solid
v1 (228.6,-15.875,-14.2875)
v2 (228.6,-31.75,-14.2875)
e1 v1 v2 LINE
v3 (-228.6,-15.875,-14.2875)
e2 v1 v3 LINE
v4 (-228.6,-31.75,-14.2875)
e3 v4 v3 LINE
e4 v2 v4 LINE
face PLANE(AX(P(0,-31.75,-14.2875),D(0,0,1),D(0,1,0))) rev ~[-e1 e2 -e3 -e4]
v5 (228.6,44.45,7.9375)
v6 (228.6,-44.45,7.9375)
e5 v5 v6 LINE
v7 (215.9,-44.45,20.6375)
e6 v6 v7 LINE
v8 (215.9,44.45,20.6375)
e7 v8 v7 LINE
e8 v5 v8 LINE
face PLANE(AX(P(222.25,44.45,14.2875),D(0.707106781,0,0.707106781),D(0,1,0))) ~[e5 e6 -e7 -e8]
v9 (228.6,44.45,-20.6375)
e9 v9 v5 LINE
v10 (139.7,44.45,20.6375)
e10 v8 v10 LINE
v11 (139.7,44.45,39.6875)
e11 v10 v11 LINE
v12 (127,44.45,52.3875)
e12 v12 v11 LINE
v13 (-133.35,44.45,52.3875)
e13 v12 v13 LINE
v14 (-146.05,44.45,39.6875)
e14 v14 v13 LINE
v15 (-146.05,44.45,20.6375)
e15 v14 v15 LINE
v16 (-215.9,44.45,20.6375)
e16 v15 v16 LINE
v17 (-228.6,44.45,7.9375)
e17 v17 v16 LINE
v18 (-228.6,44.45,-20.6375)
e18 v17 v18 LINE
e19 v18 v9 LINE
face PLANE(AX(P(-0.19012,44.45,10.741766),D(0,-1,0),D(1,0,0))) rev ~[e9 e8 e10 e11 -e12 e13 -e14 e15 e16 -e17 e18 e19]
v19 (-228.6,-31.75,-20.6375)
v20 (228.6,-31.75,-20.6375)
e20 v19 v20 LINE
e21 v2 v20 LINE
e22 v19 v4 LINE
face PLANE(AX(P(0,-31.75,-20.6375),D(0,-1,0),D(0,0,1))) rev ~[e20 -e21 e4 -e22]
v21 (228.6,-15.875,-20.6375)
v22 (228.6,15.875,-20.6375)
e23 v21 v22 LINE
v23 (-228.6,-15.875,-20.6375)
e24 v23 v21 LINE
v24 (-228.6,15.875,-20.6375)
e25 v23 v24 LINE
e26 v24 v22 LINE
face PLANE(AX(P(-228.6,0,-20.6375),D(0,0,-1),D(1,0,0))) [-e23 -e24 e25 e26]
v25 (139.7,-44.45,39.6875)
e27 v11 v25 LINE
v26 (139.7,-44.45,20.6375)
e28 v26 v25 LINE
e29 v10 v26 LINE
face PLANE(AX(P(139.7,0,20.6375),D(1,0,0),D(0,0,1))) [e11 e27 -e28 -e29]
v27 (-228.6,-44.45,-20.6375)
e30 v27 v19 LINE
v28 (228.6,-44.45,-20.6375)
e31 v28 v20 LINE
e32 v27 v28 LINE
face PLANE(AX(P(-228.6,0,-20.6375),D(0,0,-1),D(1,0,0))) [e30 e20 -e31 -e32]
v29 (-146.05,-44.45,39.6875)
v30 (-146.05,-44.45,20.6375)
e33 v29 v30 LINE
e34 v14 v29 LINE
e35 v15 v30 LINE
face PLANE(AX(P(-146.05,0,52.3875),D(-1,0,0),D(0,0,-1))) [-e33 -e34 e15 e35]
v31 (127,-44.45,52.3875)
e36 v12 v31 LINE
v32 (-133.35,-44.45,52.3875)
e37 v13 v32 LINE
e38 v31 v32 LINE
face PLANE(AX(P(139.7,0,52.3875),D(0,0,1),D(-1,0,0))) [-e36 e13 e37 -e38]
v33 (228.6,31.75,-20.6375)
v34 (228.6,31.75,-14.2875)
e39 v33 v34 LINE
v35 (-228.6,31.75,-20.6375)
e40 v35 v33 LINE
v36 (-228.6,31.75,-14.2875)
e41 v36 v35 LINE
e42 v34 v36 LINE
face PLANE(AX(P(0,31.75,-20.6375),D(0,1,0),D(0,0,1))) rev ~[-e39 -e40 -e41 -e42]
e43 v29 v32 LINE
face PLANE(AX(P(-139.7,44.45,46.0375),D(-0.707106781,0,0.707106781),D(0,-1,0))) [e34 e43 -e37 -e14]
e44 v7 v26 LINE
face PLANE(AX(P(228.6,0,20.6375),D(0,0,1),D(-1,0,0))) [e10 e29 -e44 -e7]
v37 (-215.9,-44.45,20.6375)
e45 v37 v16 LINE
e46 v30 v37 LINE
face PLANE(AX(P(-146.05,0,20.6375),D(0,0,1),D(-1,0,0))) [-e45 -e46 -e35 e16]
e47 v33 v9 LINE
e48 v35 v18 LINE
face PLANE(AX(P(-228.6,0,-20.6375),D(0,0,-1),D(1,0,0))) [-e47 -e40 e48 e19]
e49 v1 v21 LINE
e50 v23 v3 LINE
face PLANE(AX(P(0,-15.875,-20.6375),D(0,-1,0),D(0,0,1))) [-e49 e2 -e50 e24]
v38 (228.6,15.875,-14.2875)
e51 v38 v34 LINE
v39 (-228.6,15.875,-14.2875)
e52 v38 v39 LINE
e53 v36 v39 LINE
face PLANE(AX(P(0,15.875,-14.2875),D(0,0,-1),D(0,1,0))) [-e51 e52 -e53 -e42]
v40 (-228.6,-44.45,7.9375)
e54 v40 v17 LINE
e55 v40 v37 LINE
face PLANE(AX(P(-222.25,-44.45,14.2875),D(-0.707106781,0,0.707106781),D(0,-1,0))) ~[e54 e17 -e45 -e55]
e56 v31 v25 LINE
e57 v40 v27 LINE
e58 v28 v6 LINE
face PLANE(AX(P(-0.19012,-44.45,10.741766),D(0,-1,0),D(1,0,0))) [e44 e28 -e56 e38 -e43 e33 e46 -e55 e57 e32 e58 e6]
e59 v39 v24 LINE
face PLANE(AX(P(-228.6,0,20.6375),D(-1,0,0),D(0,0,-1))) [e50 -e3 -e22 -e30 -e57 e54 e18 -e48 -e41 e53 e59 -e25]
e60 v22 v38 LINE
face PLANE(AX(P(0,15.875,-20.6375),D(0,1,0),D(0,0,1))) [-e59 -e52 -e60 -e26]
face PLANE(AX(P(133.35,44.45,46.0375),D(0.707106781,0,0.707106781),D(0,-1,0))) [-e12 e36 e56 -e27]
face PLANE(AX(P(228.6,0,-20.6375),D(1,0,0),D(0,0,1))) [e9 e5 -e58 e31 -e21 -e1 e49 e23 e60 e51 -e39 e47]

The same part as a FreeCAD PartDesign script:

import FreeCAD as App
import Part
import Sketcher
from FreeCAD import Vector
Q = App.Units.Quantity


def edges_at(feature, points):
    """Names of the edges that pass closest to the given points."""
    edges = feature.Shape.Edges
    near = lambda p: min(range(len(edges)), key=lambda i: edges[i].distToShape(Part.Vertex(*p))[0])
    return sorted({f"Edge{near(p) + 1}" for p in points})


def add_polygon(sketch, points):
    """Adds a closed chain of lines whose ends are joined by coincident constraints."""
    first, n = sketch.GeometryCount, len(points)
    for a, b in zip(points, points[1:] + points[:1]):
        sketch.addGeometry(Part.LineSegment(App.Vector(*a, 0), App.Vector(*b, 0)), False)
    for i in range(n):
        sketch.addConstraint(Sketcher.Constraint("Coincident", first + i, 2, first + (i + 1) % n, 1))

doc = App.newDocument("Part")
params = doc.addObject("Spreadsheet::Sheet", "Params")
for row, (alias, value) in enumerate([
    ("sketch1_width", "18 in"),
    ("sketch1_width2", "3.5 in"),
    ("sketch1_width3", "11.25 in"),
    ("sketch1_height", "1.25 in"),
    ("sketch1_height2", "1.625 in"),
    ("pad1_length", "3.5 in"),
    ("chamfer_size", "0.5 in"),
    ("sketch2_height", "0.25 in"),
    ("sketch2_width", "0.625 in"),
    ("pocket1_length", "19 in"),
], start=1):
    params.set(f"A{row}", alias)
    params.set(f"B{row}", "=" + value)
    params.setAlias(f"B{row}", alias)

body = doc.addObject("PartDesign::Body", "Body")

# Sketch on XZ plane
sketch1 = body.newObject("Sketcher::SketchObject", "Sketch")
sketch1.AttachmentSupport = (doc.getObject("XZ_Plane"), [""])
sketch1.MapMode = "FlatFace"
add_polygon(sketch1, [(229, -21), (229, 21), (140, 21), (140, 52), (-146, 52), (-146, 21), (-229, 21), (-229, -21)])  # lines 0-7
sketch1.addConstraint([
    Sketcher.Constraint("Vertical", 0),
    Sketcher.Constraint("Horizontal", 1),
    Sketcher.Constraint("Vertical", 2),
    Sketcher.Constraint("Horizontal", 3),
    Sketcher.Constraint("Vertical", 4),
    Sketcher.Constraint("Horizontal", 5),
    Sketcher.Constraint("Vertical", 6),
    Sketcher.Constraint("Horizontal", 7),
    Sketcher.Constraint("Symmetric", 0, 2, 6, 2, -1, 1),
    Sketcher.Constraint("Horizontal", 1, 2, 4, 2),
    Sketcher.Constraint("DistanceX", 7, 1, 7, 2, Q("18 in")),
    Sketcher.Constraint("DistanceX", 1, 2, 1, 1, Q("3.5 in")),
    Sketcher.Constraint("DistanceX", 3, 2, 3, 1, Q("11.25 in")),
    Sketcher.Constraint("DistanceY", 2, 1, 2, 2, Q("1.25 in")),
    Sketcher.Constraint("DistanceY", 0, 1, 0, 2, Q("1.625 in")),
])
sketch1.setExpression("Constraints[18]", "Params.sketch1_width")
sketch1.setExpression("Constraints[19]", "Params.sketch1_width2")
sketch1.setExpression("Constraints[20]", "Params.sketch1_width3")
sketch1.setExpression("Constraints[21]", "Params.sketch1_height")
sketch1.setExpression("Constraints[22]", "Params.sketch1_height2")
pad1 = body.newObject("PartDesign::Pad", "Pad")
pad1.Profile = sketch1
pad1.setExpression("Length", "Params.pad1_length")
pad1.Midplane = True
doc.recompute()

chamfer = body.newObject("PartDesign::Chamfer", "Chamfer")
chamfer.Base = (pad1, edges_at(pad1, [
    (-146.05, 0, 52.388),
    (-228.6, 0, 20.637),
    (139.7, 0, 52.388),
    (228.6, 0, 20.637),
]))
chamfer.setExpression("Size", "Params.chamfer_size")

# Sketch on YZ plane
sketch2 = body.newObject("Sketcher::SketchObject", "Sketch001")
sketch2.AttachmentSupport = (doc.getObject("YZ_Plane"), [""])
sketch2.MapMode = "FlatFace"
add_polygon(sketch2, [(-32, -14), (-32, -21), (-16, -21), (-16, -14)])  # lines 0-3
add_polygon(sketch2, [(16, -14), (16, -21), (32, -21), (32, -14)])  # lines 4-7
sketch2.addConstraint([
    Sketcher.Constraint("Vertical", 0),
    Sketcher.Constraint("Horizontal", 1),
    Sketcher.Constraint("Vertical", 2),
    Sketcher.Constraint("Horizontal", 3),
    Sketcher.Constraint("Vertical", 4),
    Sketcher.Constraint("Horizontal", 5),
    Sketcher.Constraint("Vertical", 6),
    Sketcher.Constraint("Horizontal", 7),
    Sketcher.Constraint("Symmetric", 1, 2, 4, 2, -2),
    Sketcher.Constraint("Symmetric", 3, 2, 6, 2, -2),
    Sketcher.Constraint("DistanceY", 0, 2, 0, 1, Q("0.25 in")),
    Sketcher.Constraint("DistanceX", 0, 2, 5, 2, Q("2.5 in")),
    Sketcher.Constraint("DistanceX", 1, 1, 1, 2, Q("0.625 in")),
    Sketcher.Constraint("DistanceY", 0, 2, -1, 1, Q("0.8125 in")),
])
sketch2.setExpression("Constraints[18]", "Params.sketch2_height")
sketch2.setExpression("Constraints[20]", "Params.sketch2_width")
pocket1 = body.newObject("PartDesign::Pocket", "Pocket")
pocket1.Profile = sketch2
pocket1.setExpression("Length", "Params.pocket1_length")
pocket1.Midplane = True

doc.recompute()
